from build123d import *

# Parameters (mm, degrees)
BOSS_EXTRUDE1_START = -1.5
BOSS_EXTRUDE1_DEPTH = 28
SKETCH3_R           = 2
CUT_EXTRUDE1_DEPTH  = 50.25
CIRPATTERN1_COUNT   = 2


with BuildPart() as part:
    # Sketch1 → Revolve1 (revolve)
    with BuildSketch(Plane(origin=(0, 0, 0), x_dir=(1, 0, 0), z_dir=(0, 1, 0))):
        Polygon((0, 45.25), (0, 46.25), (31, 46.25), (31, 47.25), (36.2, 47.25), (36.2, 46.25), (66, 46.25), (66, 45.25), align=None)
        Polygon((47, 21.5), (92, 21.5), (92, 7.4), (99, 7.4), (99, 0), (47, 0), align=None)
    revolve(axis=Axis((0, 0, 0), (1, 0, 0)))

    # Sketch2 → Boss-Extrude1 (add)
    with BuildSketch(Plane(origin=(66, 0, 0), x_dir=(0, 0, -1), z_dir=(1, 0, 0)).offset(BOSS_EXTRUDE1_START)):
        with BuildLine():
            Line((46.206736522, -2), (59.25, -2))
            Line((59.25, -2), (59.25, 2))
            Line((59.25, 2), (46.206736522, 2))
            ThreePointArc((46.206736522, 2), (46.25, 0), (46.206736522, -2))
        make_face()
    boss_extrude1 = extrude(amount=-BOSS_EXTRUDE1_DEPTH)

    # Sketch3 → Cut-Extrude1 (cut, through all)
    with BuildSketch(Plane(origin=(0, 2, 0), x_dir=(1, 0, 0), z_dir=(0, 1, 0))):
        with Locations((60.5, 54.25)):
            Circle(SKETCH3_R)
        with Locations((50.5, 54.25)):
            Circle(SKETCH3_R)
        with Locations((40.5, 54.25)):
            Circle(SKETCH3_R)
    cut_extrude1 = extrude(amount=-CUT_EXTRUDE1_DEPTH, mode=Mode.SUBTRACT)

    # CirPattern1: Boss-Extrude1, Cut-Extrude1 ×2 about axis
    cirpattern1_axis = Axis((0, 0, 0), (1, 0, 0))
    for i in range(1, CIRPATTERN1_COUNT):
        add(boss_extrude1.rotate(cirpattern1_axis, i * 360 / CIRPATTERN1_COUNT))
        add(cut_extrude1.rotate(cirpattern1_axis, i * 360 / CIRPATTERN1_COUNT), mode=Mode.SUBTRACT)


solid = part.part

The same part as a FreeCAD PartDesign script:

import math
import FreeCAD as App
import Part
import Sketcher
Q = App.Units.Quantity

doc = App.newDocument("Part")
params = doc.addObject("Spreadsheet::Sheet", "Params")
for row, (alias, value) in enumerate([
    ("sketch1_width", "66 mm"),
    ("sketch1_width2", "31 mm"),
    ("sketch1_width3", "45 mm"),
    ("sketch1_width4", "52 mm"),
    ("sketch1_height", "1 mm"),
    ("revolution_angle", "360 deg"),
    ("sketch2_width", "4 mm"),
    ("sketch2_radius", "46.25 mm"),
    ("pad1_length", "28 mm"),
    ("sketch3_diameter", "4 mm"),
], start=1):
    params.set(f"A{row}", alias)
    params.set(f"B{row}", "=" + value)
    params.setAlias(f"B{row}", alias)

body = doc.addObject("PartDesign::Body", "Body")
body.AllowCompound = True

# Sketch on XZ plane
sketch1 = doc.addObject("Sketcher::SketchObject", "Sketch")
body.addObject(sketch1)
sketch1.AttachmentSupport = (doc.XZ_Plane, [""])
sketch1.MapMode = "FlatFace"
sketch1.addGeometry(Part.LineSegment(App.Vector(0, -46.2, 0), App.Vector(0, -45.2, 0)), False)
sketch1.addGeometry(Part.LineSegment(App.Vector(0, -45.2, 0), App.Vector(66, -45.2, 0)), False)
sketch1.addGeometry(Part.LineSegment(App.Vector(66, -45.2, 0), App.Vector(66, -46.2, 0)), False)
sketch1.addGeometry(Part.LineSegment(App.Vector(66, -46.2, 0), App.Vector(36.2, -46.2, 0)), False)
sketch1.addGeometry(Part.LineSegment(App.Vector(36.2, -46.2, 0), App.Vector(36.2, -47.2, 0)), False)
sketch1.addGeometry(Part.LineSegment(App.Vector(36.2, -47.2, 0), App.Vector(31, -47.2, 0)), False)
sketch1.addGeometry(Part.LineSegment(App.Vector(31, -47.2, 0), App.Vector(31, -46.2, 0)), False)
sketch1.addGeometry(Part.LineSegment(App.Vector(31, -46.2, 0), App.Vector(0, -46.2, 0)), False)
sketch1.addGeometry(Part.LineSegment(App.Vector(92, -21.5, 0), App.Vector(47, -21.5, 0)), False)
sketch1.addGeometry(Part.LineSegment(App.Vector(47, -21.5, 0), App.Vector(47, 0, 0)), False)
sketch1.addGeometry(Part.LineSegment(App.Vector(47, 0, 0), App.Vector(99, 0, 0)), False)
sketch1.addGeometry(Part.LineSegment(App.Vector(99, 0, 0), App.Vector(99, -7.4, 0)), False)
sketch1.addGeometry(Part.LineSegment(App.Vector(99, -7.4, 0), App.Vector(92, -7.4, 0)), False)
sketch1.addGeometry(Part.LineSegment(App.Vector(92, -7.4, 0), App.Vector(92, -21.5, 0)), False)
sketch1.addConstraint(Sketcher.Constraint("Coincident", 0, 2, 1, 1))
sketch1.addConstraint(Sketcher.Constraint("Coincident", 1, 2, 2, 1))
sketch1.addConstraint(Sketcher.Constraint("Coincident", 2, 2, 3, 1))
sketch1.addConstraint(Sketcher.Constraint("Coincident", 3, 2, 4, 1))
sketch1.addConstraint(Sketcher.Constraint("Coincident", 4, 2, 5, 1))
sketch1.addConstraint(Sketcher.Constraint("Coincident", 5, 2, 6, 1))
sketch1.addConstraint(Sketcher.Constraint("Coincident", 6, 2, 7, 1))
sketch1.addConstraint(Sketcher.Constraint("Coincident", 7, 2, 0, 1))
sketch1.addConstraint(Sketcher.Constraint("Coincident", 8, 2, 9, 1))
sketch1.addConstraint(Sketcher.Constraint("Coincident", 9, 2, 10, 1))
sketch1.addConstraint(Sketcher.Constraint("Coincident", 10, 2, 11, 1))
sketch1.addConstraint(Sketcher.Constraint("Coincident", 11, 2, 12, 1))
sketch1.addConstraint(Sketcher.Constraint("Coincident", 12, 2, 13, 1))
sketch1.addConstraint(Sketcher.Constraint("Coincident", 13, 2, 8, 1))
sketch1.addConstraint(Sketcher.Constraint("Vertical", 0))
sketch1.addConstraint(Sketcher.Constraint("Horizontal", 1))
sketch1.addConstraint(Sketcher.Constraint("Vertical", 2))
sketch1.addConstraint(Sketcher.Constraint("Horizontal", 3))
sketch1.addConstraint(Sketcher.Constraint("Vertical", 4))
sketch1.addConstraint(Sketcher.Constraint("Horizontal", 5))
sketch1.addConstraint(Sketcher.Constraint("Vertical", 6))
sketch1.addConstraint(Sketcher.Constraint("Horizontal", 7))
sketch1.addConstraint(Sketcher.Constraint("Horizontal", 8))
sketch1.addConstraint(Sketcher.Constraint("Vertical", 9))
sketch1.addConstraint(Sketcher.Constraint("Horizontal", 10))
sketch1.addConstraint(Sketcher.Constraint("Vertical", 11))
sketch1.addConstraint(Sketcher.Constraint("Horizontal", 12))
sketch1.addConstraint(Sketcher.Constraint("Vertical", 13))
sketch1.addConstraint(Sketcher.Constraint("PointOnObject", 0, 2, -2))
sketch1.addConstraint(Sketcher.Constraint("PointOnObject", 9, 2, -1))
sketch1.addConstraint(Sketcher.Constraint("Horizontal", 3, 2, 6, 2))
sketch1.addConstraint(Sketcher.Constraint("Equal", 2, 4))
sketch1.addConstraint(Sketcher.Constraint("DistanceX", 1, 1, 1, 2, Q("66 mm")))
sketch1.addConstraint(Sketcher.Constraint("DistanceX", 7, 2, 7, 1, Q("31 mm")))
sketch1.addConstraint(Sketcher.Constraint("DistanceX", 8, 2, 8, 1, Q("45 mm")))
sketch1.addConstraint(Sketcher.Constraint("DistanceX", 10, 1, 10, 2, Q("52 mm")))
sketch1.addConstraint(Sketcher.Constraint("DistanceY", 0, 1, 0, 2, Q("1 mm")))
sketch1.addConstraint(Sketcher.Constraint("DistanceX", 3, 2, 3, 1, Q("29.8 mm")))
sketch1.addConstraint(Sketcher.Constraint("DistanceY", 9, 1, 9, 2, Q("21.5 mm")))
sketch1.addConstraint(Sketcher.Constraint("DistanceY", 11, 2, 11, 1, Q("7.4 mm")))
sketch1.addConstraint(Sketcher.Constraint("DistanceX", -1, 1, 8, 2, Q("47 mm")))
sketch1.addConstraint(Sketcher.Constraint("DistanceY", 0, 2, -1, 1, Q("45.25 mm")))
sketch1.setExpression("Constraints[32]", "Params.sketch1_width")
sketch1.setExpression("Constraints[33]", "Params.sketch1_width2")
sketch1.setExpression("Constraints[34]", "Params.sketch1_width3")
sketch1.setExpression("Constraints[35]", "Params.sketch1_width4")
sketch1.setExpression("Constraints[36]", "Params.sketch1_height")
revolution = doc.addObject("PartDesign::Revolution", "Revolution")
body.addObject(revolution)
revolution.Profile = sketch1
revolution.ReferenceAxis = (sketch1, ["H_Axis"])
revolution.setExpression("Angle", "Params.revolution_angle")

# Sketch on YZ plane
sketch2 = doc.addObject("Sketcher::SketchObject", "Sketch001")
body.addObject(sketch2)
sketch2.AttachmentSupport = (doc.YZ_Plane, [""])
sketch2.MapMode = "FlatFace"
sketch2.AttachmentOffset = App.Placement(App.Vector(0, 0, 64.5), App.Rotation())
sketch2.addGeometry(Part.LineSegment(App.Vector(-2, -46.2, 0), App.Vector(-2, -59.2, 0)), False)
sketch2.addGeometry(Part.LineSegment(App.Vector(-2, -59.2, 0), App.Vector(2, -59.2, 0)), False)
sketch2.addGeometry(Part.LineSegment(App.Vector(2, -59.2, 0), App.Vector(2, -46.2, 0)), False)
sketch2.addGeometry(Part.ArcOfCircle(Part.Circle(App.Vector(0, 0, 0), App.Vector(0, 0, 1), 46.3), math.radians(-92.48), math.radians(-87.52)), False)
sketch2.addConstraint(Sketcher.Constraint("Coincident", 0, 2, 1, 1))
sketch2.addConstraint(Sketcher.Constraint("Coincident", 1, 2, 2, 1))
sketch2.addConstraint(Sketcher.Constraint("Coincident", 2, 2, 3, 2))
sketch2.addConstraint(Sketcher.Constraint("Coincident", 3, 1, 0, 1))
sketch2.addConstraint(Sketcher.Constraint("Vertical", 0))
sketch2.addConstraint(Sketcher.Constraint("Horizontal", 1))
sketch2.addConstraint(Sketcher.Constraint("Vertical", 2))
sketch2.addConstraint(Sketcher.Constraint("Coincident", 3, 3, -1, 1))
sketch2.addConstraint(Sketcher.Constraint("Horizontal", 2, 2, 3, 1))
sketch2.addConstraint(Sketcher.Constraint("DistanceX", 1, 1, 1, 2, Q("4 mm")))
sketch2.addConstraint(Sketcher.Constraint("Radius", 3, Q("46.25 mm")))
sketch2.addConstraint(Sketcher.Constraint("DistanceY", 0, 2, -1, 1, Q("59.25 mm")))
sketch2.setExpression("Constraints[9]", "Params.sketch2_width")
sketch2.setExpression("Constraints[10]", "Params.sketch2_radius")
pad1 = doc.addObject("PartDesign::Pad", "Pad")
body.addObject(pad1)
pad1.Profile = sketch2
pad1.setExpression("Length", "Params.pad1_length")
pad1.Reversed = True

# Sketch on XZ plane
sketch3 = doc.addObject("Sketcher::SketchObject", "Sketch002")
body.addObject(sketch3)
sketch3.AttachmentSupport = (doc.XZ_Plane, [""])
sketch3.MapMode = "FlatFace"
sketch3.AttachmentOffset = App.Placement(App.Vector(0, 0, -2), App.Rotation())
sketch3.addGeometry(Part.Circle(App.Vector(60.5, -54.2, 0), App.Vector(0, 0, 1), 2), False)
sketch3.addGeometry(Part.Circle(App.Vector(50.5, -54.2, 0), App.Vector(0, 0, 1), 2), False)
sketch3.addGeometry(Part.Circle(App.Vector(40.5, -54.2, 0), App.Vector(0, 0, 1), 2), False)
sketch3.addConstraint(Sketcher.Constraint("Equal", 0, 1))
sketch3.addConstraint(Sketcher.Constraint("Equal", 1, 2))
sketch3.addConstraint(Sketcher.Constraint("Horizontal", 0, 3, 1, 3))
sketch3.addConstraint(Sketcher.Constraint("Horizontal", 1, 3, 2, 3))
sketch3.addConstraint(Sketcher.Constraint("Diameter", 0, Q("4 mm")))
sketch3.addConstraint(Sketcher.Constraint("DistanceX", 1, 3, 0, 3, Q("10 mm")))
sketch3.addConstraint(Sketcher.Constraint("DistanceX", 2, 3, 1, 3, Q("10 mm")))
sketch3.addConstraint(Sketcher.Constraint("DistanceX", -1, 1, 0, 3, Q("60.5 mm")))
sketch3.addConstraint(Sketcher.Constraint("DistanceY", 0, 3, -1, 1, Q("54.25 mm")))
sketch3.setExpression("Constraints[4]", "Params.sketch3_diameter")
pocket1 = doc.addObject("PartDesign::Pocket", "Pocket")
body.addObject(pocket1)
pocket1.Profile = sketch3
pocket1.Type = "ThroughAll"
pocket1.Reversed = True
doc.recompute()

polarpattern = doc.addObject("PartDesign::PolarPattern", "PolarPattern")
body.addObject(polarpattern)
polarpattern.Originals = [pad1, pocket1]
polarpattern.Axis = (doc.X_Axis, [""])
polarpattern.Angle = 360
polarpattern.Occurrences = 2
body.Tip = polarpattern

doc.recompute()
